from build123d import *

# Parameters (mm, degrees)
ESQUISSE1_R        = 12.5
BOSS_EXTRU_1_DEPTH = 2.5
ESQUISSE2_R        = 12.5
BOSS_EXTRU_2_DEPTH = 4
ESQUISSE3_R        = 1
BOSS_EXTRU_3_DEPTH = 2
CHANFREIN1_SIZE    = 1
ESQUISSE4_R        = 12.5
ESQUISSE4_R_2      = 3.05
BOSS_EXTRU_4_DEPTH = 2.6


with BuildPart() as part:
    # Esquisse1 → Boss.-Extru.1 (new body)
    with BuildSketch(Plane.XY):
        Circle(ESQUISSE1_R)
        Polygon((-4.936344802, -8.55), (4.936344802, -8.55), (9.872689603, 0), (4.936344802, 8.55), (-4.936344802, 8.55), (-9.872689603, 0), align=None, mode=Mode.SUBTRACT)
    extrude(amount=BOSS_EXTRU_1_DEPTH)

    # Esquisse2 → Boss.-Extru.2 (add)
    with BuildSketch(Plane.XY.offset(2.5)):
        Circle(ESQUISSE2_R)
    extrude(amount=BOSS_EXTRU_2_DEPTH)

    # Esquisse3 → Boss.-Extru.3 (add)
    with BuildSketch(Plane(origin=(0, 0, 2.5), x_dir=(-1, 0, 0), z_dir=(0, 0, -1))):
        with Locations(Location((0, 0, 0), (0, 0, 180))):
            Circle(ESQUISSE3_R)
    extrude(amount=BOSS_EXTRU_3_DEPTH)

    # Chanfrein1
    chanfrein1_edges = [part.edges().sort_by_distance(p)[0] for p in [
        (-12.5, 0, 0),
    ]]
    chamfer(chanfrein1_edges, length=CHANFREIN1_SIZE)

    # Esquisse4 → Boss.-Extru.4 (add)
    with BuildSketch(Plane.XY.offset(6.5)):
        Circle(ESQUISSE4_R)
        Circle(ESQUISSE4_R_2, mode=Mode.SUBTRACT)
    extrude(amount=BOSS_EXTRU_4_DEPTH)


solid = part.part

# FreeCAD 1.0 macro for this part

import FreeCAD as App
import Part
import Sketcher
Q = App.Units.Quantity


def edges_at(feature, points):
    """Names of the edges that pass closest to the given points."""
    edges = feature.Shape.Edges
    near = lambda p: min(range(len(edges)), key=lambda i: edges[i].distToShape(Part.Vertex(*p))[0])
    return sorted({f"Edge{near(p) + 1}" for p in points})

doc = App.newDocument("Part")
body = doc.addObject("PartDesign::Body", "Body")

sketch1 = body.newObject("Sketcher::SketchObject", "Sketch")
sketch1.AttachmentSupport = (doc.getObject("XY_Plane"), [""])
sketch1.MapMode = "FlatFace"
sketch1.addGeometry([
    Part.Circle(App.Vector(0, 0, 0), App.Vector(0, 0, 1), 12.5),
    Part.LineSegment(App.Vector(4.936345, -8.55, 0), App.Vector(-4.936345, -8.55, 0)),
    Part.LineSegment(App.Vector(-4.936345, -8.55, 0), App.Vector(-9.87269, 0, 0)),
    Part.LineSegment(App.Vector(-9.87269, 0, 0), App.Vector(-4.936345, 8.55, 0)),
    Part.LineSegment(App.Vector(-4.936345, 8.55, 0), App.Vector(4.936345, 8.55, 0)),
    Part.LineSegment(App.Vector(4.936345, 8.55, 0), App.Vector(9.87269, 0, 0)),
    Part.LineSegment(App.Vector(9.87269, 0, 0), App.Vector(4.936345, -8.55, 0)),
], False)
sketch1.addConstraint([
    Sketcher.Constraint("Coincident", 1, 2, 2, 1),
    Sketcher.Constraint("Coincident", 2, 2, 3, 1),
    Sketcher.Constraint("Coincident", 3, 2, 4, 1),
    Sketcher.Constraint("Coincident", 4, 2, 5, 1),
    Sketcher.Constraint("Coincident", 5, 2, 6, 1),
    Sketcher.Constraint("Coincident", 6, 2, 1, 1),
    Sketcher.Constraint("Horizontal", 1),
    Sketcher.Constraint("Horizontal", 4),
    Sketcher.Constraint("Coincident", 0, 3, -1, 1),
    Sketcher.Constraint("Symmetric", 1, 2, 4, 2, -1, 1),
    Sketcher.Constraint("Symmetric", 2, 2, 5, 2, -1, 1),
    Sketcher.Constraint("PointOnObject", 2, 2, -1),
    Sketcher.Constraint("Parallel", 3, 6),
    Sketcher.Constraint("Vertical", 1, 2, 3, 2),
    Sketcher.Constraint("Diameter", 0, Q("25 mm")),
    Sketcher.Constraint("Angle", 2, Q("120 deg")),
    Sketcher.Constraint("DistanceY", 1, 2, 3, 2, Q("17.1 mm")),
    Sketcher.Constraint("DistanceX", 1, 2, 1, 1, Q("9.87269 mm")),
])
pad1 = body.newObject("PartDesign::Pad", "Pad")
pad1.Profile = sketch1
pad1.Length = 2.5

sketch2 = body.newObject("Sketcher::SketchObject", "Sketch001")
sketch2.AttachmentSupport = (doc.getObject("XY_Plane"), [""])
sketch2.MapMode = "FlatFace"
sketch2.AttachmentOffset = App.Placement(App.Vector(0, 0, 2.5), App.Rotation())
sketch2.addGeometry(Part.Circle(App.Vector(0, 0, 0), App.Vector(0, 0, 1), 12.5), False)
sketch2.addConstraint([
    Sketcher.Constraint("Coincident", 0, 3, -1, 1),
    Sketcher.Constraint("Diameter", 0, Q("25 mm")),
])
pad2 = body.newObject("PartDesign::Pad", "Pad001")
pad2.Profile = sketch2
pad2.Length = 4

sketch3 = body.newObject("Sketcher::SketchObject", "Sketch002")
sketch3.AttachmentSupport = (doc.getObject("XY_Plane"), [""])
sketch3.MapMode = "FlatFace"
sketch3.AttachmentOffset = App.Placement(App.Vector(0, 0, 2.5), App.Rotation())
sketch3.addGeometry(Part.Circle(App.Vector(0, 0, 0), App.Vector(0, 0, 1), 1), False)
sketch3.addConstraint([
    Sketcher.Constraint("Coincident", 0, 3, -1, 1),
    Sketcher.Constraint("Diameter", 0, Q("2 mm")),
])
pad3 = body.newObject("PartDesign::Pad", "Pad002")
pad3.Profile = sketch3
pad3.Length = 2
pad3.Reversed = True
doc.recompute()

chamfer = body.newObject("PartDesign::Chamfer", "Chamfer")
chamfer.Base = (pad3, edges_at(pad3, [(-12.5, 0, 0)]))
chamfer.Size = 1

sketch4 = body.newObject("Sketcher::SketchObject", "Sketch003")
sketch4.AttachmentSupport = (doc.getObject("XY_Plane"), [""])
sketch4.MapMode = "FlatFace"
sketch4.AttachmentOffset = App.Placement(App.Vector(0, 0, 6.5), App.Rotation())
sketch4.addGeometry([
    Part.Circle(App.Vector(0, 0, 0), App.Vector(0, 0, 1), 12.5),
    Part.Circle(App.Vector(0, 0, 0), App.Vector(0, 0, 1), 3.05),
], False)
sketch4.addConstraint([
    Sketcher.Constraint("Coincident", 0, 3, -1, 1),
    Sketcher.Constraint("Coincident", 1, 3, -1, 1),
    Sketcher.Constraint("Diameter", 0, Q("25 mm")),
    Sketcher.Constraint("Diameter", 1, Q("6.1 mm")),
])
pad4 = body.newObject("PartDesign::Pad", "Pad003")
pad4.Profile = sketch4
pad4.Length = 2.6

doc.recompute()
